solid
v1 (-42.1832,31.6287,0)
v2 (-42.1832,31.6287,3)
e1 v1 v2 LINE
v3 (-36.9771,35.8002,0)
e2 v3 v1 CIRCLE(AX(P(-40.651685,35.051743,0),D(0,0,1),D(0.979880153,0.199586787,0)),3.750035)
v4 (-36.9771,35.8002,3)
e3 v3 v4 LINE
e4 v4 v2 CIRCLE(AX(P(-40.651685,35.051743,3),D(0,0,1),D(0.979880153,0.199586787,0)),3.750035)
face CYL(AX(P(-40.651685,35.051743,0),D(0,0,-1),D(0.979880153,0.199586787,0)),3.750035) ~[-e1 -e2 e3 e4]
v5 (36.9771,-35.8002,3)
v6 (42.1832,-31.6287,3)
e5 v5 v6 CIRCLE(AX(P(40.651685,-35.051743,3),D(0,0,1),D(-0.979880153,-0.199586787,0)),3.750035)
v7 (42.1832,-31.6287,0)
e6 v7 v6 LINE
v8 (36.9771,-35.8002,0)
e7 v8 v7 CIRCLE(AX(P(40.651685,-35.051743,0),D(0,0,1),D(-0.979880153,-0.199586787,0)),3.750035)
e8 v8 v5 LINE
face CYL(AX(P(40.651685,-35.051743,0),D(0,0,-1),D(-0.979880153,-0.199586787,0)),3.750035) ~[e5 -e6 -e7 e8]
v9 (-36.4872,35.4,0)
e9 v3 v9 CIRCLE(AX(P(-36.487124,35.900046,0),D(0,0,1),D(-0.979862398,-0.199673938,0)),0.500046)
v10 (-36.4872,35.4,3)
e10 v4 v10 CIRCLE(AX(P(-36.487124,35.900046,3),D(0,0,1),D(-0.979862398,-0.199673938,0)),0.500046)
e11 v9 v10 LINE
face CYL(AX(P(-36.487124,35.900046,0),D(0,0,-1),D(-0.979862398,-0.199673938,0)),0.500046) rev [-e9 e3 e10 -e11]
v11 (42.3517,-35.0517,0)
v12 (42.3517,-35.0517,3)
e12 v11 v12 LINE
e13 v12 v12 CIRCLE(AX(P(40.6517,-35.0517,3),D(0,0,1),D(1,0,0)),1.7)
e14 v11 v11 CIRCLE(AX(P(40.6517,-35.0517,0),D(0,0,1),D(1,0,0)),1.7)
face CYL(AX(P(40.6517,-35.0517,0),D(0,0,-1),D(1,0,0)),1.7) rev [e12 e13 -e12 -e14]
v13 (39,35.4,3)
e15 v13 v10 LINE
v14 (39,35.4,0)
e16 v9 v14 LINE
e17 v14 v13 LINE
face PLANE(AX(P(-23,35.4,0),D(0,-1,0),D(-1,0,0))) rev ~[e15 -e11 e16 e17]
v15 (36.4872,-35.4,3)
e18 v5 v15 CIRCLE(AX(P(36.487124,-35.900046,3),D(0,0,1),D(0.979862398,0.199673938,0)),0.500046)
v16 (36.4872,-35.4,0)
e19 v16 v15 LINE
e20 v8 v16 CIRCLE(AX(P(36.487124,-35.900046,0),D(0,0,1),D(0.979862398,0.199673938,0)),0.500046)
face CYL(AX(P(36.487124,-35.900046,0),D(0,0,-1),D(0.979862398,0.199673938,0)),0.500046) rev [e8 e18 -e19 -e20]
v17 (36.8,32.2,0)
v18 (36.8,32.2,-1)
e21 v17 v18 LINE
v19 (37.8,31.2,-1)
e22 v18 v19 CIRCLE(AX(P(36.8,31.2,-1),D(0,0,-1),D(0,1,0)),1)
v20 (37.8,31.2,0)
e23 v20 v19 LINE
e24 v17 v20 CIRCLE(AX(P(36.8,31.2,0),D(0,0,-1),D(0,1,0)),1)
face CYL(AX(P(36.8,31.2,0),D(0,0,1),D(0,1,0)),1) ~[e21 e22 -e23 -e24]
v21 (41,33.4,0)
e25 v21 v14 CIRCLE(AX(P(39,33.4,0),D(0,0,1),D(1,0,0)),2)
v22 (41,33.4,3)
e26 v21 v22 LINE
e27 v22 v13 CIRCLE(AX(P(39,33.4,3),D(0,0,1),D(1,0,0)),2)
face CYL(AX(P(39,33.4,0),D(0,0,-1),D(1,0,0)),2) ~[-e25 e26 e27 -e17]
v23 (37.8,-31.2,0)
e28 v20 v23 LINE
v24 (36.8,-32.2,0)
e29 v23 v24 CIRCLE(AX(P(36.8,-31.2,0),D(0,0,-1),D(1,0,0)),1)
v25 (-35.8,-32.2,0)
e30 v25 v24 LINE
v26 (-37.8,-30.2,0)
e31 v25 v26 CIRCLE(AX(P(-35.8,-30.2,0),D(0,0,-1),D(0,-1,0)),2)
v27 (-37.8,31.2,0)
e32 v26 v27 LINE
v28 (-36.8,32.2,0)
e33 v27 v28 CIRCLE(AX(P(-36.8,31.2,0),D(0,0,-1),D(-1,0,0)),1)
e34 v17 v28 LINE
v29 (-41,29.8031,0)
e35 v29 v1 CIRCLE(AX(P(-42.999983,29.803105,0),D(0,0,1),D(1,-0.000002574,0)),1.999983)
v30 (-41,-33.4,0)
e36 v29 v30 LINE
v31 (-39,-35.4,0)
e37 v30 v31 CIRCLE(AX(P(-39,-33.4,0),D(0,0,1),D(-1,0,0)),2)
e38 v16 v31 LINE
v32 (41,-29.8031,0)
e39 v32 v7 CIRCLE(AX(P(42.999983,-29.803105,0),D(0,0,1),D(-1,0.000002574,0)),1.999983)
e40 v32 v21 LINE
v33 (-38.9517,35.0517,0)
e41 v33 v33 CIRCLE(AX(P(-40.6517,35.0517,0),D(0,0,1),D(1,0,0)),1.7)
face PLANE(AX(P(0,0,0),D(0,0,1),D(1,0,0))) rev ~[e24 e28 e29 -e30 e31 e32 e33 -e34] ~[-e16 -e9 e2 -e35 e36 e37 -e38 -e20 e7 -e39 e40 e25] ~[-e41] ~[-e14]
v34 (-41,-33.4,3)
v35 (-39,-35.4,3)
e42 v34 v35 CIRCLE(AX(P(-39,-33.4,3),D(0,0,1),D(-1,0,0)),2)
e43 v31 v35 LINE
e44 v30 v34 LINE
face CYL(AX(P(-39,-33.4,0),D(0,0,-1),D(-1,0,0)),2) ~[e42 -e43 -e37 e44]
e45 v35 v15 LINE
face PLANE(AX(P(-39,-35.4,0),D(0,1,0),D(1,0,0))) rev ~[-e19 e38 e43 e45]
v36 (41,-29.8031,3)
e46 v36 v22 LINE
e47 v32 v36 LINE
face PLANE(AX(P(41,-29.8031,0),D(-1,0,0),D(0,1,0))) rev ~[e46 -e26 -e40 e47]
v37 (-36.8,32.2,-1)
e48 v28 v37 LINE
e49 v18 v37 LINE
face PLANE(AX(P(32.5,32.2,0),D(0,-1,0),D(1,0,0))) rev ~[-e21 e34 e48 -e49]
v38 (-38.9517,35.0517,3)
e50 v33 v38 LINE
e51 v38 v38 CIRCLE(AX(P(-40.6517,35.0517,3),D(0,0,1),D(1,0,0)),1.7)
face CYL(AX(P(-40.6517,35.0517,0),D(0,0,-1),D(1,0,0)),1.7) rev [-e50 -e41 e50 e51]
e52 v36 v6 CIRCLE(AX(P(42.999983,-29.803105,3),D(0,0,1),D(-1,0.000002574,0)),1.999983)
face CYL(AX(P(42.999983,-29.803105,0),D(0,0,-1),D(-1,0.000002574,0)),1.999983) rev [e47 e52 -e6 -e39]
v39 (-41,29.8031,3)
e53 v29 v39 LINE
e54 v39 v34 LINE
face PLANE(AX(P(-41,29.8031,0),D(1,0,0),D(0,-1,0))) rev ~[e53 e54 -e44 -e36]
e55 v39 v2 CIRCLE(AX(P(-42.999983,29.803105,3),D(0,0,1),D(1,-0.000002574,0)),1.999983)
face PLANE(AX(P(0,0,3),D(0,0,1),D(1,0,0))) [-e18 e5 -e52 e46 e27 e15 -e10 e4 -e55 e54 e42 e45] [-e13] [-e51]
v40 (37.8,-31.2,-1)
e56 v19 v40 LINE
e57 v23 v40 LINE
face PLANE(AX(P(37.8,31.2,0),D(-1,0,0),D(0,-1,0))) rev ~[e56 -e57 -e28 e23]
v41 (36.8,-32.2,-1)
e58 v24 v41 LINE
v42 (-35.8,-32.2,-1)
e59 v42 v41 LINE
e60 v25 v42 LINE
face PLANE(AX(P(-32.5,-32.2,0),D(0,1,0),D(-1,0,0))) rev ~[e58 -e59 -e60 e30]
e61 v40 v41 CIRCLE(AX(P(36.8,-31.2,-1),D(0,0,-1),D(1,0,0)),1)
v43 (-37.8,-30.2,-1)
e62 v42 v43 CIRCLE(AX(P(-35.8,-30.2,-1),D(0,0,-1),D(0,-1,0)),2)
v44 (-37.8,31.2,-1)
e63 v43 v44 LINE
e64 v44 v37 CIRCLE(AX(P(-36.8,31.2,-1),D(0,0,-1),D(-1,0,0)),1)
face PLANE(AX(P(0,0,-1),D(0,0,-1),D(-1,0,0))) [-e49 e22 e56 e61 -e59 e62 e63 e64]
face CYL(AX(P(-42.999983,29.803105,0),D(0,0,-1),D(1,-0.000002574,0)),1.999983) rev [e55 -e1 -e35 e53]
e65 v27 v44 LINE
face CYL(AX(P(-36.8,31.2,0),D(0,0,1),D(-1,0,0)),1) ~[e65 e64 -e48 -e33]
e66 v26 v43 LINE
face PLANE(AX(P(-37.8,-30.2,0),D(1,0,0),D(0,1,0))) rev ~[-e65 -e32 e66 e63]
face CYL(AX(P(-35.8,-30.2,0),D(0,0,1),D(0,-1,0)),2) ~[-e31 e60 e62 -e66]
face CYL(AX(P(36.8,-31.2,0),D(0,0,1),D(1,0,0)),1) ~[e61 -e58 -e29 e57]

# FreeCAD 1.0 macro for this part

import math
import FreeCAD as App
import Part
import Sketcher
from FreeCAD import Vector

doc = App.newDocument("Part")
body = doc.addObject("PartDesign::Body", "Body")

# Sketch on XY plane
sketch1 = doc.addObject("Sketcher::SketchObject", "Sketch")
body.addObject(sketch1)
sketch1.AttachmentSupport = (doc.XY_Plane, [""])
sketch1.MapMode = "FlatFace"
sketch1.addGeometry(Part.ArcOfCircle(Part.Circle(Vector(-43, 29.8031, 0), Vector(0, 0, 1), 2), math.radians(0), math.radians(65.895563)), False)
sketch1.addGeometry(Part.LineSegment(Vector(-41, 29.8031, 0), Vector(-41, -33.4, 0)), False)
sketch1.addGeometry(Part.ArcOfCircle(Part.Circle(Vector(-39, -33.4, 0), Vector(0, 0, 1), 2), math.radians(180), math.radians(270)), False)
sketch1.addGeometry(Part.LineSegment(Vector(-39, -35.4, 0), Vector(36.4872, -35.4, 0)), False)
sketch1.addGeometry(Part.ArcOfCircle(Part.Circle(Vector(36.4872, -35.9, 0), Vector(0, 0, 1), 0.499962), math.radians(11.514455), math.radians(90)), False)
sketch1.addGeometry(Part.ArcOfCircle(Part.Circle(Vector(40.6517, -35.0517, 0), Vector(0, 0, 1), 3.750058), math.radians(-168.486612), math.radians(65.895563)), False)
sketch1.addGeometry(Part.ArcOfCircle(Part.Circle(Vector(43, -29.8031, 0), Vector(0, 0, 1), 2), math.radians(180), math.radians(245.895563)), False)
sketch1.addGeometry(Part.LineSegment(Vector(41, -29.8031, 0), Vector(41, 33.4, 0)), False)
sketch1.addGeometry(Part.ArcOfCircle(Part.Circle(Vector(39, 33.4, 0), Vector(0, 0, 1), 2), math.radians(0), math.radians(90)), False)
sketch1.addGeometry(Part.LineSegment(Vector(39, 35.4, 0), Vector(-36.4872, 35.4, 0)), False)
sketch1.addGeometry(Part.ArcOfCircle(Part.Circle(Vector(-36.4872, 35.9, 0), Vector(0, 0, 1), 0.499962), math.radians(-168.485545), math.radians(-90)), False)
sketch1.addGeometry(Part.ArcOfCircle(Part.Circle(Vector(-40.6517, 35.0517, 0), Vector(0, 0, 1), 3.750058), math.radians(11.513388), math.radians(245.895563)), False)
sketch1.addGeometry(Part.Circle(Vector(40.6517, -35.0517, 0), Vector(0, 0, 1), 1.7), False)
sketch1.addGeometry(Part.Circle(Vector(-40.6517, 35.0517, 0), Vector(0, 0, 1), 1.7), False)
sketch1.addConstraint(Sketcher.Constraint("Coincident", 0, 1, 1, 1))
sketch1.addConstraint(Sketcher.Constraint("Coincident", 1, 2, 2, 1))
sketch1.addConstraint(Sketcher.Constraint("Coincident", 2, 2, 3, 1))
sketch1.addConstraint(Sketcher.Constraint("Coincident", 3, 2, 4, 2))
sketch1.addConstraint(Sketcher.Constraint("Coincident", 4, 1, 5, 1))
sketch1.addConstraint(Sketcher.Constraint("Coincident", 5, 2, 6, 2))
sketch1.addConstraint(Sketcher.Constraint("Coincident", 6, 1, 7, 1))
sketch1.addConstraint(Sketcher.Constraint("Coincident", 7, 2, 8, 1))
sketch1.addConstraint(Sketcher.Constraint("Coincident", 8, 2, 9, 1))
sketch1.addConstraint(Sketcher.Constraint("Coincident", 9, 2, 10, 2))
sketch1.addConstraint(Sketcher.Constraint("Coincident", 10, 1, 11, 1))
sketch1.addConstraint(Sketcher.Constraint("Coincident", 11, 2, 0, 2))
sketch1.addConstraint(Sketcher.Constraint("Vertical", 1))
sketch1.addConstraint(Sketcher.Constraint("Horizontal", 3))
sketch1.addConstraint(Sketcher.Constraint("Vertical", 7))
sketch1.addConstraint(Sketcher.Constraint("Horizontal", 9))
sketch1.addConstraint(Sketcher.Constraint("Coincident", 12, 3, 5, 3))
sketch1.addConstraint(Sketcher.Constraint("Coincident", 13, 3, 11, 3))
sketch1.addConstraint(Sketcher.Constraint("Diameter", 12, 3.4))
sketch1.addConstraint(Sketcher.Constraint("Diameter", 13, 3.4))
sketch1.addConstraint(Sketcher.Constraint("Radius", 0, 2.0))
sketch1.addConstraint(Sketcher.Constraint("Radius", 2, 2.0))
sketch1.addConstraint(Sketcher.Constraint("Radius", 6, 2.0))
sketch1.addConstraint(Sketcher.Constraint("Radius", 8, 2.0))
sketch1.addConstraint(Sketcher.Constraint("Radius", 4, 0.5))
sketch1.addConstraint(Sketcher.Constraint("Radius", 10, 0.5))
sketch1.addConstraint(Sketcher.Constraint("Radius", 5, 3.75))
sketch1.addConstraint(Sketcher.Constraint("Radius", 11, 3.75))
sketch1.addConstraint(Sketcher.Constraint("DistanceX", 0, 3, -1, 1, 43.0))
sketch1.addConstraint(Sketcher.Constraint("DistanceX", -1, 1, 6, 3, 43.0))
sketch1.addConstraint(Sketcher.Constraint("DistanceX", 2, 2, -1, 1, 39.0))
sketch1.addConstraint(Sketcher.Constraint("DistanceX", -1, 1, 8, 2, 39.0))
sketch1.addConstraint(Sketcher.Constraint("DistanceY", 2, 2, 1, 2, 2.0))
sketch1.addConstraint(Sketcher.Constraint("DistanceY", 7, 2, 8, 2, 2.0))
sketch1.addConstraint(Sketcher.Constraint("DistanceY", 2, 3, -1, 1, 33.4))
sketch1.addConstraint(Sketcher.Constraint("DistanceY", -1, 1, 8, 3, 33.4))
sketch1.addConstraint(Sketcher.Constraint("DistanceY", 1, 2, 1, 1, 63.203))
sketch1.addConstraint(Sketcher.Constraint("DistanceY", 7, 1, 7, 2, 63.203))
sketch1.addConstraint(Sketcher.Constraint("DistanceX", 4, 3, 4, 1, 0.49))
sketch1.addConstraint(Sketcher.Constraint("DistanceX", 3, 2, 4, 1, 0.49))
sketch1.addConstraint(Sketcher.Constraint("DistanceX", 10, 1, 10, 3, 0.49))
sketch1.addConstraint(Sketcher.Constraint("DistanceX", 10, 1, 9, 2, 0.49))
sketch1.addConstraint(Sketcher.Constraint("DistanceX", 3, 1, 3, 2, 75.4872))
sketch1.addConstraint(Sketcher.Constraint("DistanceX", 9, 2, 9, 1, 75.4872))
sketch1.addConstraint(Sketcher.Constraint("DistanceY", -1, 1, 0, 3, 29.803))
sketch1.addConstraint(Sketcher.Constraint("DistanceY", 6, 3, -1, 1, 29.803))
sketch1.addConstraint(Sketcher.Constraint("DistanceY", 5, 3, 5, 2, 3.423))
sketch1.addConstraint(Sketcher.Constraint("DistanceY", 11, 2, 11, 3, 3.423))
pad1 = doc.addObject("PartDesign::Pad", "Pad")
body.addObject(pad1)
pad1.Profile = sketch1
pad1.Length = 3

# Sketch on XY plane
sketch2 = doc.addObject("Sketcher::SketchObject", "Sketch001")
body.addObject(sketch2)
sketch2.AttachmentSupport = (doc.XY_Plane, [""])
sketch2.MapMode = "FlatFace"
sketch2.addGeometry(Part.LineSegment(Vector(36.8, -32.2, 0), Vector(-35.8, -32.2, 0)), False)
sketch2.addGeometry(Part.ArcOfCircle(Part.Circle(Vector(-35.8, -30.2, 0), Vector(0, 0, 1), 2), math.radians(180), math.radians(270)), False)
sketch2.addGeometry(Part.LineSegment(Vector(-37.8, -30.2, 0), Vector(-37.8, 31.2, 0)), False)
sketch2.addGeometry(Part.ArcOfCircle(Part.Circle(Vector(-36.8, 31.2, 0), Vector(0, 0, 1), 1), math.radians(90), math.radians(180)), False)
sketch2.addGeometry(Part.LineSegment(Vector(-36.8, 32.2, 0), Vector(36.8, 32.2, 0)), False)
sketch2.addGeometry(Part.ArcOfCircle(Part.Circle(Vector(36.8, 31.2, 0), Vector(0, 0, 1), 1), math.radians(0), math.radians(90)), False)
sketch2.addGeometry(Part.LineSegment(Vector(37.8, 31.2, 0), Vector(37.8, -31.2, 0)), False)
sketch2.addGeometry(Part.ArcOfCircle(Part.Circle(Vector(36.8, -31.2, 0), Vector(0, 0, 1), 1), math.radians(-90), math.radians(0)), False)
sketch2.addConstraint(Sketcher.Constraint("Tangent", 0, 2, 1, 2))
sketch2.addConstraint(Sketcher.Constraint("Tangent", 1, 1, 2, 1))
sketch2.addConstraint(Sketcher.Constraint("Tangent", 2, 2, 3, 2))
sketch2.addConstraint(Sketcher.Constraint("Tangent", 3, 1, 4, 1))
sketch2.addConstraint(Sketcher.Constraint("Tangent", 4, 2, 5, 2))
sketch2.addConstraint(Sketcher.Constraint("Tangent", 5, 1, 6, 1))
sketch2.addConstraint(Sketcher.Constraint("Tangent", 6, 2, 7, 2))
sketch2.addConstraint(Sketcher.Constraint("Tangent", 7, 1, 0, 1))
sketch2.addConstraint(Sketcher.Constraint("Horizontal", 0))
sketch2.addConstraint(Sketcher.Constraint("Vertical", 2))
sketch2.addConstraint(Sketcher.Constraint("Horizontal", 4))
sketch2.addConstraint(Sketcher.Constraint("Vertical", 6))
sketch2.addConstraint(Sketcher.Constraint("Equal", 3, 5))
sketch2.addConstraint(Sketcher.Constraint("Equal", 5, 7))
sketch2.addConstraint(Sketcher.Constraint("Symmetric", 3, 3, 7, 3, -1, 1))
sketch2.addConstraint(Sketcher.Constraint("Radius", 1, 2.0))
sketch2.addConstraint(Sketcher.Constraint("Radius", 3, 1.0))
sketch2.addConstraint(Sketcher.Constraint("DistanceX", 0, 2, 0, 1, 72.6))
sketch2.addConstraint(Sketcher.Constraint("DistanceY", 2, 1, 2, 2, 61.4))
pad2 = doc.addObject("PartDesign::Pad", "Pad001")
body.addObject(pad2)
pad2.Profile = sketch2
pad2.Length = 1
pad2.Reversed = True

doc.recompute()
